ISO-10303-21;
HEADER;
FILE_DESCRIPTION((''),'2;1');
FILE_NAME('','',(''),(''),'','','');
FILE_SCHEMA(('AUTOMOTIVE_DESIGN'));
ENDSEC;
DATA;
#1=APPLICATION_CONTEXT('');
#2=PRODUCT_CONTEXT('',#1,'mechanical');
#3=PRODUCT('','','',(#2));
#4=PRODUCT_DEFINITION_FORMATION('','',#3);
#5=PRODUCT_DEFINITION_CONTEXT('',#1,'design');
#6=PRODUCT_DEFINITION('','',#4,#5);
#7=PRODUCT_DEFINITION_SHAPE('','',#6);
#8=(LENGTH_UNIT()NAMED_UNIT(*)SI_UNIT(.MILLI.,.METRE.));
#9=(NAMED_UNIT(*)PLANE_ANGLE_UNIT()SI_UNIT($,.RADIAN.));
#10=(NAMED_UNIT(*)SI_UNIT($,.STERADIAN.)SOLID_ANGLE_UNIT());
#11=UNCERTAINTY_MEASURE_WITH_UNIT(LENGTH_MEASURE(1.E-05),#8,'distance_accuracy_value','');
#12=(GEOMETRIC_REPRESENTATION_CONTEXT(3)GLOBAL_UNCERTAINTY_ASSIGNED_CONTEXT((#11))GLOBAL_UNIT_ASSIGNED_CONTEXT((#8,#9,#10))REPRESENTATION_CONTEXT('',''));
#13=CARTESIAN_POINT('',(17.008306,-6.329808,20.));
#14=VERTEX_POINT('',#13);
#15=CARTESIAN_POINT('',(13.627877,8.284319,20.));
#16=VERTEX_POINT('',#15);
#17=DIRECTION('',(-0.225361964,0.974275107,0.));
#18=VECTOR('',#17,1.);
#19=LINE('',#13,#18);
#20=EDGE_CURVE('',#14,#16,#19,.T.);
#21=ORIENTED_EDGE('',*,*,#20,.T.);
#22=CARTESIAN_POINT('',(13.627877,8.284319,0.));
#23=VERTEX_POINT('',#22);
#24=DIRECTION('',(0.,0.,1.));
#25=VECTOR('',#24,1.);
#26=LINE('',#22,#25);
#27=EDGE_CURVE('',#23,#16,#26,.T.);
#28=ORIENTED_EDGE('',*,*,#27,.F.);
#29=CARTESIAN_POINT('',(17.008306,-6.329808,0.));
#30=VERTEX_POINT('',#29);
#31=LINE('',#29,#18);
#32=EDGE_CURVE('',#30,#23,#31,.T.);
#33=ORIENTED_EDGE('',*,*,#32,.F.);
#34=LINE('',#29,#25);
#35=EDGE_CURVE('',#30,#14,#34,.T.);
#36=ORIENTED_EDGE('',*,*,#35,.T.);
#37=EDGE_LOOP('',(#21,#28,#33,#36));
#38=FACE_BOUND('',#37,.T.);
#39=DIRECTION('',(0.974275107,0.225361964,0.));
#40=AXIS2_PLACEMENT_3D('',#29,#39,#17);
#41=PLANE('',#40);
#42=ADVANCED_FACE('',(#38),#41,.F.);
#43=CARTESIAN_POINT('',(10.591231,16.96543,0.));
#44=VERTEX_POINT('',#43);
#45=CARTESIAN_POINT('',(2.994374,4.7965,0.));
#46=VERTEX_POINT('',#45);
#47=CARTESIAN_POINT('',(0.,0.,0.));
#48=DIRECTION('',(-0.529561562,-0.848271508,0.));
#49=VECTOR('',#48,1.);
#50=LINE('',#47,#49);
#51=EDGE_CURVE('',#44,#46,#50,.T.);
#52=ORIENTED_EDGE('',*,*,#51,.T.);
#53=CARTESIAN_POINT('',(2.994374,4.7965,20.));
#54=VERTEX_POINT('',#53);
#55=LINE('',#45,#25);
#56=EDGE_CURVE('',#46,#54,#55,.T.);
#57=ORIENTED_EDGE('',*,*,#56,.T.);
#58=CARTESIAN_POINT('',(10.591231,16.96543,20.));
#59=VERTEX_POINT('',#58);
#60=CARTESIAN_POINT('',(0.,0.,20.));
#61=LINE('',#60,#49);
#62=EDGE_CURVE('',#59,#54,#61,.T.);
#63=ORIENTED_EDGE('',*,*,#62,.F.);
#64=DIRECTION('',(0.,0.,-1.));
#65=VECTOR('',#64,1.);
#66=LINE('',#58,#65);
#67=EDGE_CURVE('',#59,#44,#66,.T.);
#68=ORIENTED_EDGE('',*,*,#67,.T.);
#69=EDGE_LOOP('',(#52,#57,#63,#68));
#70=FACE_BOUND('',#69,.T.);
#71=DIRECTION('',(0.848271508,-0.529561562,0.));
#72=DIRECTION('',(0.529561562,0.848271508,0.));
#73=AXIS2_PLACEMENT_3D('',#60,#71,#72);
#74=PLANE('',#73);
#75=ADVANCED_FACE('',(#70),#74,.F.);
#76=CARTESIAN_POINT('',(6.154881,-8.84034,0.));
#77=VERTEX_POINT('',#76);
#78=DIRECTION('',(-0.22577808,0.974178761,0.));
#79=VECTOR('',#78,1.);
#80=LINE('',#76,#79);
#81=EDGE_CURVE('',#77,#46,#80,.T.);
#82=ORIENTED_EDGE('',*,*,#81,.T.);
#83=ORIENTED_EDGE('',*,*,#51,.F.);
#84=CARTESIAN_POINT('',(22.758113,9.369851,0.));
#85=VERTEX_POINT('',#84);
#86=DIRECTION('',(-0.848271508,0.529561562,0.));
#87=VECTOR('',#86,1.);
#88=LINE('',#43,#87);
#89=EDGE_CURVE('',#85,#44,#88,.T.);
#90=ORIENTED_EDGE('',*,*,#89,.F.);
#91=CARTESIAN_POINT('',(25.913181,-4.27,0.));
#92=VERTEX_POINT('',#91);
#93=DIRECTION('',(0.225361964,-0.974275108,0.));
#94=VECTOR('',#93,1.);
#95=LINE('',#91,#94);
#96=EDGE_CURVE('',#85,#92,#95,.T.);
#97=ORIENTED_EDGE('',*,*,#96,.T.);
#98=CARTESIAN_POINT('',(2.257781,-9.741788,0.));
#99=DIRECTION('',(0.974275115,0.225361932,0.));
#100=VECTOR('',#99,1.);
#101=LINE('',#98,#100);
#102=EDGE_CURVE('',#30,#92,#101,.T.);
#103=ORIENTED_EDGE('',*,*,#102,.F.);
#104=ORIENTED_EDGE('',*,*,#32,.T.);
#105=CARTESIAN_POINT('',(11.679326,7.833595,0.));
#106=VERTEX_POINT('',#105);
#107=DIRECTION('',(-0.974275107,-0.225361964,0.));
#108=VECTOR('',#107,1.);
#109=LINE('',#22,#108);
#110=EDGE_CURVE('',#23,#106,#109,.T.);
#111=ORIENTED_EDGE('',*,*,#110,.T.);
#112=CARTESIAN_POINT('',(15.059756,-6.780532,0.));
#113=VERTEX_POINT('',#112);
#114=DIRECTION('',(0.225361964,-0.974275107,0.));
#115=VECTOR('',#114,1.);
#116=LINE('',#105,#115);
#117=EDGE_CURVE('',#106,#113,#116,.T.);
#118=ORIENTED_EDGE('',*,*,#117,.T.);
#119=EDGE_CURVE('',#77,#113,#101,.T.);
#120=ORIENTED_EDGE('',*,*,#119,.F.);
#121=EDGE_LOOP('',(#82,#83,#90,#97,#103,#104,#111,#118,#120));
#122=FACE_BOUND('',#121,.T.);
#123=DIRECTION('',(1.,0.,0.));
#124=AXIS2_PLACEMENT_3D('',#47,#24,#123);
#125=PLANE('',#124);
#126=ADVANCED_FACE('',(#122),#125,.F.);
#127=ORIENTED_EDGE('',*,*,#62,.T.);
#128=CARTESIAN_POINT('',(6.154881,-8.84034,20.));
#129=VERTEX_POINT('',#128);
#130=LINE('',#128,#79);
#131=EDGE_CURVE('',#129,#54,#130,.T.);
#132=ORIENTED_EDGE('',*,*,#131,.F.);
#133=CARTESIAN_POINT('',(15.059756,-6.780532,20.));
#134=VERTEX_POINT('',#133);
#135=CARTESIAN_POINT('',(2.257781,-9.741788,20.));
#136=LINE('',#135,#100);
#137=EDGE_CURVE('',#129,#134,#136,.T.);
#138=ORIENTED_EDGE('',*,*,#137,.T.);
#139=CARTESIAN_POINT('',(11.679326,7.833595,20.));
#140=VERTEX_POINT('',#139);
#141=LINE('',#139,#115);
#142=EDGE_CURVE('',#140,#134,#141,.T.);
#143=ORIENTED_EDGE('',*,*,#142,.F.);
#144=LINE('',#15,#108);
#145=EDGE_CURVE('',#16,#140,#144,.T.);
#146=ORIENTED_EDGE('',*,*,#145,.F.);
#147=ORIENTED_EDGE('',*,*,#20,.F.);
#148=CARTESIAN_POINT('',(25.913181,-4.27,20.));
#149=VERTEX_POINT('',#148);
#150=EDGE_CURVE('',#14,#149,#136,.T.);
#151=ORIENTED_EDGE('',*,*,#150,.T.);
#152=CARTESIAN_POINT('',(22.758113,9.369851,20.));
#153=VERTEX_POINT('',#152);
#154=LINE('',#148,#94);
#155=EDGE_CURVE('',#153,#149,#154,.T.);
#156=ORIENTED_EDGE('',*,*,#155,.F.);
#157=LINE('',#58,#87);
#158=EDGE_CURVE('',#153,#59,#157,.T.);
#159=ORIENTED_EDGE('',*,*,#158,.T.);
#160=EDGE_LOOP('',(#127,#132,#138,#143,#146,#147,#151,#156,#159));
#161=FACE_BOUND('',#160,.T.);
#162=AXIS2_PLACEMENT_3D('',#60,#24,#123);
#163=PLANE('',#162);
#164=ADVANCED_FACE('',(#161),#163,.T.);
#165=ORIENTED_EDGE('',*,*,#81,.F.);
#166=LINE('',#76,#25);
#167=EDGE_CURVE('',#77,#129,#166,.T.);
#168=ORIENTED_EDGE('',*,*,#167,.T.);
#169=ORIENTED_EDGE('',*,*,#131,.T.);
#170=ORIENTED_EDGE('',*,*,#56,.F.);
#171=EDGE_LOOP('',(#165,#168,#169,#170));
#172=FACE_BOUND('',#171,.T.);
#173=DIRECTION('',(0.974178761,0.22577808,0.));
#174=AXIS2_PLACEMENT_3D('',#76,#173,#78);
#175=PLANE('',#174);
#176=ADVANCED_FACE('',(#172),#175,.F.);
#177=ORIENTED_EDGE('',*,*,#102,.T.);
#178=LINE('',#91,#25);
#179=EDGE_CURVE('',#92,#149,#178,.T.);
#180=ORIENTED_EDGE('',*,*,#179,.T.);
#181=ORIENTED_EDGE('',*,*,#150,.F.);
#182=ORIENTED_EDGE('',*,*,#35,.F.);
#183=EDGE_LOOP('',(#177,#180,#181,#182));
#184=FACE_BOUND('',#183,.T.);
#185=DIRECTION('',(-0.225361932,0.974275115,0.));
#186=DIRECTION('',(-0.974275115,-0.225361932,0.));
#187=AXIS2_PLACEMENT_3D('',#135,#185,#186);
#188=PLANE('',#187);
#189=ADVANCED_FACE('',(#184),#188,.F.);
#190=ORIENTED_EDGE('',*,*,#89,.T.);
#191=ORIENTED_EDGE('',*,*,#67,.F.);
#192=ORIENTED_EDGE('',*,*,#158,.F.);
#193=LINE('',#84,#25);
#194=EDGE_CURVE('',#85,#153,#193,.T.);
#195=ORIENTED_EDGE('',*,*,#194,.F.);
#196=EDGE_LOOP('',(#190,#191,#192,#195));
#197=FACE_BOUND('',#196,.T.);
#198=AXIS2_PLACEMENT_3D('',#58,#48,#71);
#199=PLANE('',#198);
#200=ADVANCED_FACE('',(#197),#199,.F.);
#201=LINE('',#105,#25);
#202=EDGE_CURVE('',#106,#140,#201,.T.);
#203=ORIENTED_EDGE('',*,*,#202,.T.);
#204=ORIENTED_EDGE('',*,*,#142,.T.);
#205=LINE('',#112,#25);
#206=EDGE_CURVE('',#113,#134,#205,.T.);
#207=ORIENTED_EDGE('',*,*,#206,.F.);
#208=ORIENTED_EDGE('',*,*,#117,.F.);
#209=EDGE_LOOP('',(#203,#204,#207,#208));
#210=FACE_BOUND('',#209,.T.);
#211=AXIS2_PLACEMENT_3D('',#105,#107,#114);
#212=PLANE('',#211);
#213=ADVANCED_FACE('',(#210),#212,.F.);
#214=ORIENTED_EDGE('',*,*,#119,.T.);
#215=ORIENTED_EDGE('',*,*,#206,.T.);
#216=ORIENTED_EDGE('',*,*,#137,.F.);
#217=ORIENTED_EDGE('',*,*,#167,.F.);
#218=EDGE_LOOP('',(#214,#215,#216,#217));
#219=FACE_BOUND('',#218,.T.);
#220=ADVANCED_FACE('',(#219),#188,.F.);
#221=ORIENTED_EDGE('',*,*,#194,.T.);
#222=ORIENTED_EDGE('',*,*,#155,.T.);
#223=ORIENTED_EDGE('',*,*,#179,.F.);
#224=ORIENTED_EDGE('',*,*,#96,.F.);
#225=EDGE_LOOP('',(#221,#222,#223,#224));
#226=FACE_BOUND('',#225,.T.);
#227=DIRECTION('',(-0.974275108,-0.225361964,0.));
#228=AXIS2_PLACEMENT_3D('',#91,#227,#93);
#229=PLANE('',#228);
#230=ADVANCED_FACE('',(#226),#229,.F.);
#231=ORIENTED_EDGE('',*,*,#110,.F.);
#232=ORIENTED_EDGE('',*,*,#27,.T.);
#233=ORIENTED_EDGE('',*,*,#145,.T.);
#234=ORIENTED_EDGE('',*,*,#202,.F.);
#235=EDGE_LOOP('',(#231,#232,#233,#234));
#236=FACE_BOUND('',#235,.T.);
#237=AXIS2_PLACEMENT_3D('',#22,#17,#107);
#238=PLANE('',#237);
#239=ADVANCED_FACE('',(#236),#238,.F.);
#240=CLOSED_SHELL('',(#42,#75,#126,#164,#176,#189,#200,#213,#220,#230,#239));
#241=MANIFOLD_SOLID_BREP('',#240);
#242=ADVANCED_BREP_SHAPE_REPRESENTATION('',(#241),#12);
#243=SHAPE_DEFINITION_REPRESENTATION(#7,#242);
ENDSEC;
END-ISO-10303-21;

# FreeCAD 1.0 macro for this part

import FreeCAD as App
import Part
import Sketcher

V = App.Vector

doc = App.newDocument("Part")
body = doc.addObject("PartDesign::Body", "Body")

# Sketch on XY plane
sketch1 = body.newObject("Sketcher::SketchObject", "Sketch")
sketch1.AttachmentSupport = (doc.getObject("XY_Plane"), [""])
sketch1.MapMode = "FlatFace"
sketch1.addGeometry(Part.LineSegment(V(11, 17, 0), V(0, 0, 0)), False)
sketch1.addGeometry(Part.LineSegment(V(0, 0, 0), V(2, -10, 0)), False)
sketch1.addGeometry(Part.LineSegment(V(2, -10, 0), V(30, -3, 0)), False)
sketch1.addGeometry(Part.LineSegment(V(30, -3, 0), V(28, 6, 0)), False)
sketch1.addGeometry(Part.LineSegment(V(28, 6, 0), V(11, 17, 0)), False)
sketch1.addConstraint(Sketcher.Constraint("Coincident", 0, 2, 1, 1))
sketch1.addConstraint(Sketcher.Constraint("Coincident", 1, 2, 2, 1))
sketch1.addConstraint(Sketcher.Constraint("Coincident", 2, 2, 3, 1))
sketch1.addConstraint(Sketcher.Constraint("Coincident", 3, 2, 4, 1))
sketch1.addConstraint(Sketcher.Constraint("Coincident", 4, 2, 0, 1))
sketch1.addConstraint(Sketcher.Constraint("Coincident", 0, 2, -1, 1))
sketch1.addConstraint(Sketcher.Constraint("Perpendicular", 2, 3))
sketch1.addConstraint(Sketcher.Constraint("Perpendicular", 0, 4))
sketch1.addConstraint(Sketcher.Constraint("Equal", 1, 3))
sketch1.addConstraint(Sketcher.Constraint("Equal", 0, 4))
sketch1.addConstraint(Sketcher.Constraint("Distance", 0, 20.0))
sketch1.addConstraint(Sketcher.Constraint("Distance", 1, 10.0))
sketch1.addConstraint(Sketcher.Constraint("Distance", 2, 28.28))
sketch1.addConstraint(Sketcher.Constraint("DistanceY", -1, 1, 3, 2, 6.374199))
pad1 = body.newObject("PartDesign::Pad", "Pad")
pad1.Profile = sketch1
pad1.Length = 20

# Sketch on XY plane
sketch2 = body.newObject("Sketcher::SketchObject", "Sketch001")
sketch2.AttachmentSupport = (doc.getObject("XY_Plane"), [""])
sketch2.MapMode = "FlatFace"
sketch2.AttachmentOffset = App.Placement(V(0, 0, 20), App.Rotation())
sketch2.addGeometry(Part.LineSegment(V(15.1, -6.8, 0), V(17, -6.3, 0)), False)
sketch2.addGeometry(Part.LineSegment(V(17, -6.3, 0), V(13.6, 8.3, 0)), False)
sketch2.addGeometry(Part.LineSegment(V(13.6, 8.3, 0), V(11.7, 7.8, 0)), False)
sketch2.addGeometry(Part.LineSegment(V(11.7, 7.8, 0), V(15.1, -6.8, 0)), False)
sketch2.addConstraint(Sketcher.Constraint("Coincident", 0, 2, 1, 1))
sketch2.addConstraint(Sketcher.Constraint("Coincident", 1, 2, 2, 1))
sketch2.addConstraint(Sketcher.Constraint("Coincident", 2, 2, 3, 1))
sketch2.addConstraint(Sketcher.Constraint("Coincident", 3, 2, 0, 1))
sketch2.addConstraint(Sketcher.Constraint("Perpendicular", 0, 1))
sketch2.addConstraint(Sketcher.Constraint("Perpendicular", 1, 2))
sketch2.addConstraint(Sketcher.Constraint("Perpendicular", 2, 3))
sketch2.addConstraint(Sketcher.Constraint("Distance", 0, 2.0))
sketch2.addConstraint(Sketcher.Constraint("Distance", 1, 15.0))
sketch2.addConstraint(Sketcher.Constraint("DistanceY", -1, 1, 1, 2, 8.284319))
sketch2.addConstraint(Sketcher.Constraint("DistanceY", 3, 2, -1, 1, 6.780532))
sketch2.addConstraint(Sketcher.Constraint("DistanceX", -1, 1, 0, 2, 17.008306))
pocket1 = body.newObject("PartDesign::Pocket", "Pocket")
pocket1.Profile = sketch2
pocket1.Length = 20

# Sketch on XY plane
sketch3 = body.newObject("Sketcher::SketchObject", "Sketch002")
sketch3.AttachmentSupport = (doc.getObject("XY_Plane"), [""])
sketch3.MapMode = "FlatFace"
sketch3.AttachmentOffset = App.Placement(V(0, 0, 20), App.Rotation())
sketch3.addGeometry(Part.LineSegment(V(6.2, -8.8, 0), V(3, 4.8, 0)), False)
sketch3.addGeometry(Part.LineSegment(V(3, 4.8, 0), V(-5.4, 2.6, 0)), False)
sketch3.addGeometry(Part.LineSegment(V(-5.4, 2.6, 0), V(0.9, -10.7, 0)), False)
sketch3.addGeometry(Part.LineSegment(V(0.9, -10.7, 0), V(6.4, -10.3, 0)), False)
sketch3.addGeometry(Part.LineSegment(V(6.4, -10.3, 0), V(6.2, -8.8, 0)), False)
sketch3.addGeometry(Part.LineSegment(V(22.8, 9.4, 0), V(25.9, -4.3, 0)), False)
sketch3.addGeometry(Part.LineSegment(V(25.9, -4.3, 0), V(30.4, -4.3, 0)), False)
sketch3.addGeometry(Part.LineSegment(V(30.4, -4.3, 0), V(39.5, -8.9, 0)), False)
sketch3.addGeometry(Part.LineSegment(V(39.5, -8.9, 0), V(37.7, 8.1, 0)), False)
sketch3.addGeometry(Part.LineSegment(V(37.7, 8.1, 0), V(22.8, 9.4, 0)), False)
sketch3.addConstraint(Sketcher.Constraint("Coincident", 0, 2, 1, 1))
sketch3.addConstraint(Sketcher.Constraint("Coincident", 1, 2, 2, 1))
sketch3.addConstraint(Sketcher.Constraint("Coincident", 2, 2, 3, 1))
sketch3.addConstraint(Sketcher.Constraint("Coincident", 3, 2, 4, 1))
sketch3.addConstraint(Sketcher.Constraint("Coincident", 4, 2, 0, 1))
sketch3.addConstraint(Sketcher.Constraint("Coincident", 5, 2, 6, 1))
sketch3.addConstraint(Sketcher.Constraint("Coincident", 6, 2, 7, 1))
sketch3.addConstraint(Sketcher.Constraint("Coincident", 7, 2, 8, 1))
sketch3.addConstraint(Sketcher.Constraint("Coincident", 8, 2, 9, 1))
sketch3.addConstraint(Sketcher.Constraint("Coincident", 9, 2, 5, 1))
sketch3.addConstraint(Sketcher.Constraint("Distance", 5, 14.0))
sketch3.addConstraint(Sketcher.Constraint("DistanceY", 5, 2, -1, 1, 4.27))
sketch3.addConstraint(Sketcher.Constraint("Distance", 9, 14.987899))
sketch3.addConstraint(Sketcher.Constraint("DistanceY", -1, 1, 0, 2, 4.7965))
sketch3.addConstraint(Sketcher.Constraint("DistanceX", 4, 2, 5, 2, 19.758299))
sketch3.addConstraint(Sketcher.Constraint("DistanceY", 6, 2, 0, 2, 9.084902))
sketch3.addConstraint(Sketcher.Constraint("Distance", 1, 8.661568))
sketch3.addConstraint(Sketcher.Constraint("Distance", 2, 14.632662))
sketch3.addConstraint(Sketcher.Constraint("Distance", 4, 1.47954))
sketch3.addConstraint(Sketcher.Constraint("Distance", 8, 17.104912))
sketch3.addConstraint(Sketcher.Constraint("DistanceY", -1, 1, 1, 2, 2.555972))
sketch3.addConstraint(Sketcher.Constraint("DistanceX", -1, 1, 3, 2, 6.39481))
sketch3.addConstraint(Sketcher.Constraint("DistanceX", -1, 1, 4, 2, 6.154881))
sketch3.addConstraint(Sketcher.Constraint("DistanceY", 4, 2, -1, 1, 8.84034))
sketch3.addConstraint(Sketcher.Constraint("DistanceX", -1, 1, 7, 2, 39.46416))
sketch3.addConstraint(Sketcher.Constraint("DistanceX", -1, 1, 8, 2, 37.69329))
sketch3.addConstraint(Sketcher.Constraint("DistanceY", -1, 1, 8, 2, 8.113831))
sketch3.addConstraint(Sketcher.Constraint("DistanceX", 2, 2, 0, 2, 2.11129))
sketch3.addConstraint(Sketcher.Constraint("DistanceX", 0, 2, 9, 2, 19.76374))
sketch3.addConstraint(Sketcher.Constraint("Distance", 6, 4.476304))
pocket2 = body.newObject("PartDesign::Pocket", "Pocket001")
pocket2.Profile = sketch3
pocket2.Length = 20

doc.recompute()
